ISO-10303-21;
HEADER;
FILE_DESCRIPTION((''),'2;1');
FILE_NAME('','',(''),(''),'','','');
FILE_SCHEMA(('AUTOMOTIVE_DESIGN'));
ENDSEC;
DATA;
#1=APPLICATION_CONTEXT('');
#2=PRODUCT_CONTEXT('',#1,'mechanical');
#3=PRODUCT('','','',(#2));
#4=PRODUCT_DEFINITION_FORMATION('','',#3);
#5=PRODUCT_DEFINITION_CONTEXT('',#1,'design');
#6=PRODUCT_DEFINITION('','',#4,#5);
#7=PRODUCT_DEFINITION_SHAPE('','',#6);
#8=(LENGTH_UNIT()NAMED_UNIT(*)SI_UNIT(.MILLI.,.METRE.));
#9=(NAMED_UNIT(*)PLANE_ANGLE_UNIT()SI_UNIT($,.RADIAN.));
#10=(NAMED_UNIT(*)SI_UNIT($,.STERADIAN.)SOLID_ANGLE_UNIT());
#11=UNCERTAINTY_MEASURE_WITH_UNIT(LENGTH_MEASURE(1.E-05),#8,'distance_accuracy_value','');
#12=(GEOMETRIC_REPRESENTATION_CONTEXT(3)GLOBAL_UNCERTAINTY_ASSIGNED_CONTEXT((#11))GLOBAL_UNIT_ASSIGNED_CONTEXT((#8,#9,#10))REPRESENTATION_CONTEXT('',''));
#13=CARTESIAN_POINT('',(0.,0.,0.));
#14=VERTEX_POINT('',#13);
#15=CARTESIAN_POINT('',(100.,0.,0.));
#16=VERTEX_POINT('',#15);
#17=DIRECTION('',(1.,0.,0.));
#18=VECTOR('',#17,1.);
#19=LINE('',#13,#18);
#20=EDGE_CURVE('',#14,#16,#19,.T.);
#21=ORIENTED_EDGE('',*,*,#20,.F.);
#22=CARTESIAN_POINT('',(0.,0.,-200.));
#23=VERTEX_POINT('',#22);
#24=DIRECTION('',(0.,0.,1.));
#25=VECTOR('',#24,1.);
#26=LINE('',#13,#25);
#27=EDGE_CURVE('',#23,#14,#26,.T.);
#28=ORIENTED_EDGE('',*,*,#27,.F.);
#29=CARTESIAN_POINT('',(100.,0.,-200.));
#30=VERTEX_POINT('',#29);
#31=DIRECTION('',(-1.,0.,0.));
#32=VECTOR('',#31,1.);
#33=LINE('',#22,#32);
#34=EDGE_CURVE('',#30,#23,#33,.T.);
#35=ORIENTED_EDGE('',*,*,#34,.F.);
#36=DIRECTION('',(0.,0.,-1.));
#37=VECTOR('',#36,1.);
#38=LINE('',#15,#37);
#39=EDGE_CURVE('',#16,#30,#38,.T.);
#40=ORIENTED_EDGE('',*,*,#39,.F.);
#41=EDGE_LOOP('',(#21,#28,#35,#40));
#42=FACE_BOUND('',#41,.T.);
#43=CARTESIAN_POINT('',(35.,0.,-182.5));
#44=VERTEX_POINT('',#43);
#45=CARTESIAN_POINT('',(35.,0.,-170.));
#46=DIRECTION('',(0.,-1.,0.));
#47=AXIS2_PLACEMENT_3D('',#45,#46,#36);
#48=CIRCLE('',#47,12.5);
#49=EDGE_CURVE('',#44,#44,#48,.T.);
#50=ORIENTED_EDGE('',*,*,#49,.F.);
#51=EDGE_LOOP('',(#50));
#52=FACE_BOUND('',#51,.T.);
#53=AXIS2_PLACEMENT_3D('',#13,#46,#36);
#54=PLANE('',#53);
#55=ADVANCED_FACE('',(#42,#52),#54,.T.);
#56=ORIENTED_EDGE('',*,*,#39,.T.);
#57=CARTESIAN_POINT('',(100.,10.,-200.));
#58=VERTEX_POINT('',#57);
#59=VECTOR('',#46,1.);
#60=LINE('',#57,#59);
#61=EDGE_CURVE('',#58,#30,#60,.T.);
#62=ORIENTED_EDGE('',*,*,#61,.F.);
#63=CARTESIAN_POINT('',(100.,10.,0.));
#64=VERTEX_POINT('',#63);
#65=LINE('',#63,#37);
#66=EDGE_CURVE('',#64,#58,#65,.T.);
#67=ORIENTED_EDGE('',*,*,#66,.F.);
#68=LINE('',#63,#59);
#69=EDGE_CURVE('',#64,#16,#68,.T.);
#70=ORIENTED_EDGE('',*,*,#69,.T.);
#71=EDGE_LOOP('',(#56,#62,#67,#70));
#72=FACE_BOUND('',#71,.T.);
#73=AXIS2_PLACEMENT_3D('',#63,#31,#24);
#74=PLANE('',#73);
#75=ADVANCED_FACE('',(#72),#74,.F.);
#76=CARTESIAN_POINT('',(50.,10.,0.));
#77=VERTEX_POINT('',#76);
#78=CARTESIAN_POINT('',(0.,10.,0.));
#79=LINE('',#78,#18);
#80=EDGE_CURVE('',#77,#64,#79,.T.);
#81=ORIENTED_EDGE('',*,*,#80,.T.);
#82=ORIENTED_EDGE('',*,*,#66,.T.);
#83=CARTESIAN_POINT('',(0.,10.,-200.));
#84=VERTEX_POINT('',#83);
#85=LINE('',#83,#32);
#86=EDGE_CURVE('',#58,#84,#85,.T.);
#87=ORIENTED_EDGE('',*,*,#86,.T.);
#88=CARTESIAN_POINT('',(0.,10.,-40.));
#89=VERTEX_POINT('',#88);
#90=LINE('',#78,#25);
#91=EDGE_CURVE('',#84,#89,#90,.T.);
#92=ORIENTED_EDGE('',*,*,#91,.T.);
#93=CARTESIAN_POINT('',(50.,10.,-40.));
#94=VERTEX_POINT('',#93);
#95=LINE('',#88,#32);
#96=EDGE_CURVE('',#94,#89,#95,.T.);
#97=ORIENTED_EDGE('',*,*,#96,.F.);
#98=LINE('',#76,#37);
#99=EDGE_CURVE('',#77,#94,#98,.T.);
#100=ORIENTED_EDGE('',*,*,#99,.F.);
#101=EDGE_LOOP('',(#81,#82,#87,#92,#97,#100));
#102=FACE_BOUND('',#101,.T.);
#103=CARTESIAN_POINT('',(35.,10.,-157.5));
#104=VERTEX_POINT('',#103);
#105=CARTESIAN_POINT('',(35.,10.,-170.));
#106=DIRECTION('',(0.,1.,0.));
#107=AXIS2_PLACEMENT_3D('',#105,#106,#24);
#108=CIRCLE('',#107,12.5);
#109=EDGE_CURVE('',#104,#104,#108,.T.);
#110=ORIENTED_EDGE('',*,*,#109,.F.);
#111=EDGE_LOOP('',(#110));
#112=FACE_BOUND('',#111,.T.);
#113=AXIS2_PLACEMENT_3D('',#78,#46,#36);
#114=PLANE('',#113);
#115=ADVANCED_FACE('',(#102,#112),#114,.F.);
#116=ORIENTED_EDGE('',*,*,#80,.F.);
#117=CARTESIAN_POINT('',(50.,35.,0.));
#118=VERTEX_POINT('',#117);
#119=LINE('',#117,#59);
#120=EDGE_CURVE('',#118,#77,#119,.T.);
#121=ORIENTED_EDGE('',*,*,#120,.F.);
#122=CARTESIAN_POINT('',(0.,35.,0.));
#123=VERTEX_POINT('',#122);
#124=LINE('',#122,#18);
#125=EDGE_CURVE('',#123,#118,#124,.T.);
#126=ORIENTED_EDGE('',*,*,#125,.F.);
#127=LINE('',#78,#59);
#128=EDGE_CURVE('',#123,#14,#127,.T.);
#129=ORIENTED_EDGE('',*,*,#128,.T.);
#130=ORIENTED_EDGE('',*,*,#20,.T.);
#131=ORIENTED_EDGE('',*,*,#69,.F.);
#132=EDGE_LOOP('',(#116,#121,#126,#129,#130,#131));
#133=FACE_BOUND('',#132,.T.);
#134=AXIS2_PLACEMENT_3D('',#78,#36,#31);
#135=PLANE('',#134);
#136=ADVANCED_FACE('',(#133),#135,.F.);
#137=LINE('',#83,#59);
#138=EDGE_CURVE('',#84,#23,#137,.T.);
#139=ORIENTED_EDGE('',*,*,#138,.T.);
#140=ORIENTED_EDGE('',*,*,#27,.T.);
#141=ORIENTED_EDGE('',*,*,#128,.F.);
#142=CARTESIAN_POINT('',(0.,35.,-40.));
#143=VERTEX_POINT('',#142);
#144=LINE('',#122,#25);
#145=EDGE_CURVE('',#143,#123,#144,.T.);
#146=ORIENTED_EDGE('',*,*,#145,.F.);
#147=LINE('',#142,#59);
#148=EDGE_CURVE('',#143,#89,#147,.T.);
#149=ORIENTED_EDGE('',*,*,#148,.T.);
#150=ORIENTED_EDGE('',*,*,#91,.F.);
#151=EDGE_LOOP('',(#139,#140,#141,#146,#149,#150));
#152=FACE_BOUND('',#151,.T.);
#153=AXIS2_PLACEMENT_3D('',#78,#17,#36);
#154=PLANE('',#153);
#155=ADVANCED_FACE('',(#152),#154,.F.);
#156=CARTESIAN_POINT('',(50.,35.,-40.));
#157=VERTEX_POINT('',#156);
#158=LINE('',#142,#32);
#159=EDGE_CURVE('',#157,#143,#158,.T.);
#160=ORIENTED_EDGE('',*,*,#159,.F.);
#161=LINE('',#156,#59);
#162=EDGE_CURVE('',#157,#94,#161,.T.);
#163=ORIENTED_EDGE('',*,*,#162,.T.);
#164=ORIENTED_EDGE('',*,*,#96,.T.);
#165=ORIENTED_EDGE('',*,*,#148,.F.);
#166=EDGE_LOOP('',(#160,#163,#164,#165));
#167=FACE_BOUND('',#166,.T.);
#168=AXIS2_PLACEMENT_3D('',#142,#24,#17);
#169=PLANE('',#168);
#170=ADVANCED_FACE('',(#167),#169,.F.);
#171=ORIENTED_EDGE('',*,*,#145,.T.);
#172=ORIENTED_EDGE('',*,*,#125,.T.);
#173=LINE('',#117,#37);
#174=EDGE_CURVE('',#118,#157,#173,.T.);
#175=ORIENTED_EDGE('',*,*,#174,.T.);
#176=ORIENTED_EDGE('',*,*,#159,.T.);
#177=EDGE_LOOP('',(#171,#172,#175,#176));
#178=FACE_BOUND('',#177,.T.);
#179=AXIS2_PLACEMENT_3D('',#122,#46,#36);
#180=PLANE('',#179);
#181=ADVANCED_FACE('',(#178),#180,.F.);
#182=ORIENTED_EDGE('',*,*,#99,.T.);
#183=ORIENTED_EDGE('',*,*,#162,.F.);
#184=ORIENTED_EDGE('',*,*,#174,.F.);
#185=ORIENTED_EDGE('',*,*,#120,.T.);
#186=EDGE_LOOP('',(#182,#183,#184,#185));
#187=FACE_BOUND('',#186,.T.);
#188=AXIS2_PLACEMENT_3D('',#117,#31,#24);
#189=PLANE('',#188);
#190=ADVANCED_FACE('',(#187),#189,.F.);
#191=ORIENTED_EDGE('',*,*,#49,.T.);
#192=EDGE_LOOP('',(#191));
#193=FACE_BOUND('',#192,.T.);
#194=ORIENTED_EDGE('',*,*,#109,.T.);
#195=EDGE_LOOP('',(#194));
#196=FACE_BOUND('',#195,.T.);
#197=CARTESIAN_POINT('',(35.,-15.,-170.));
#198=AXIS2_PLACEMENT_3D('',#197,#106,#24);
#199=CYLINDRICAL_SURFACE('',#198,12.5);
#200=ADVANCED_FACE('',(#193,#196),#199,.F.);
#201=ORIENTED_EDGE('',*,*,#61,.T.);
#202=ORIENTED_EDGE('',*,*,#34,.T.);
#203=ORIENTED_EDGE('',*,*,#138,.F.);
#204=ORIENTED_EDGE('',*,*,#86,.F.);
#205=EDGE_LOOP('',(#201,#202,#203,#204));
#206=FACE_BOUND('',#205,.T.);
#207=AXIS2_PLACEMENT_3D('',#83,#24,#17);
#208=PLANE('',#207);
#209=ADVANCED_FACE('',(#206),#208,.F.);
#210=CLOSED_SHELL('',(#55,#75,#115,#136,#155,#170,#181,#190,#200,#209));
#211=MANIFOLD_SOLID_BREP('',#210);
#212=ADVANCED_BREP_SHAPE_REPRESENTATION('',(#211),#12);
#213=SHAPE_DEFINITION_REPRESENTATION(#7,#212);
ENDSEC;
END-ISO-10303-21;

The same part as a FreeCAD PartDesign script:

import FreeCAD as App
import Part
import Sketcher
from FreeCAD import Vector


def add_polygon(sketch, points):
    """Adds a closed chain of lines whose ends are joined by coincident constraints."""
    first, n = sketch.GeometryCount, len(points)
    for a, b in zip(points, points[1:] + points[:1]):
        sketch.addGeometry(Part.LineSegment(App.Vector(*a, 0), App.Vector(*b, 0)), False)
    for i in range(n):
        sketch.addConstraint(Sketcher.Constraint("Coincident", first + i, 2, first + (i + 1) % n, 1))

doc = App.newDocument("Part")
body = doc.addObject("PartDesign::Body", "Body")

sketch1 = body.newObject("Sketcher::SketchObject", "Sketch")
sketch1.AttachmentSupport = (doc.getObject("XZ_Plane"), [""])
sketch1.MapMode = "FlatFace"
add_polygon(sketch1, [(0, -200), (0, 0), (100, 0), (100, -200)])
sketch1.addConstraint(Sketcher.Constraint("Vertical", 0))
sketch1.addConstraint(Sketcher.Constraint("Horizontal", 1))
sketch1.addConstraint(Sketcher.Constraint("Vertical", 2))
sketch1.addConstraint(Sketcher.Constraint("Horizontal", 3))
sketch1.addConstraint(Sketcher.Constraint("Coincident", 0, 2, -1, 1))
sketch1.addConstraint(Sketcher.Constraint("DistanceX", 1, 1, 1, 2, 100.0))
sketch1.addConstraint(Sketcher.Constraint("DistanceY", 0, 1, 0, 2, 200.0))
pad1 = body.newObject("PartDesign::Pad", "Pad")
pad1.Profile = sketch1
pad1.Length = 10
pad1.Reversed = True

sketch2 = body.newObject("Sketcher::SketchObject", "Sketch001")
sketch2.AttachmentSupport = (doc.getObject("XZ_Plane"), [""])
sketch2.MapMode = "FlatFace"
sketch2.AttachmentOffset = App.Placement(Vector(0, 0, -10), App.Rotation())
add_polygon(sketch2, [(0, -40), (0, 0), (50, 0), (50, -40)])
sketch2.addConstraint(Sketcher.Constraint("Vertical", 0))
sketch2.addConstraint(Sketcher.Constraint("Horizontal", 1))
sketch2.addConstraint(Sketcher.Constraint("Vertical", 2))
sketch2.addConstraint(Sketcher.Constraint("Horizontal", 3))
sketch2.addConstraint(Sketcher.Constraint("Coincident", 0, 2, -1, 1))
sketch2.addConstraint(Sketcher.Constraint("DistanceX", 1, 1, 1, 2, 50.0))
sketch2.addConstraint(Sketcher.Constraint("DistanceY", 0, 1, 0, 2, 40.0))
pad2 = body.newObject("PartDesign::Pad", "Pad001")
pad2.Profile = sketch2
pad2.Length = 25
pad2.Reversed = True

sketch3 = body.newObject("Sketcher::SketchObject", "Sketch002")
sketch3.AttachmentSupport = (doc.getObject("XZ_Plane"), [""])
sketch3.MapMode = "FlatFace"
sketch3.AttachmentOffset = App.Placement(Vector(0, 0, -10), App.Rotation())
sketch3.addGeometry(Part.Circle(Vector(35, -170, 0), Vector(0, 0, 1), 12), False)
sketch3.addConstraint(Sketcher.Constraint("Diameter", 0, 25.0))
sketch3.addConstraint(Sketcher.Constraint("DistanceX", -1, 1, 0, 3, 35.0))
sketch3.addConstraint(Sketcher.Constraint("DistanceY", 0, 3, -1, 1, 170.0))
pocket1 = body.newObject("PartDesign::Pocket", "Pocket")
pocket1.Profile = sketch3
pocket1.Length = 25
pocket1.Reversed = True

doc.recompute()
